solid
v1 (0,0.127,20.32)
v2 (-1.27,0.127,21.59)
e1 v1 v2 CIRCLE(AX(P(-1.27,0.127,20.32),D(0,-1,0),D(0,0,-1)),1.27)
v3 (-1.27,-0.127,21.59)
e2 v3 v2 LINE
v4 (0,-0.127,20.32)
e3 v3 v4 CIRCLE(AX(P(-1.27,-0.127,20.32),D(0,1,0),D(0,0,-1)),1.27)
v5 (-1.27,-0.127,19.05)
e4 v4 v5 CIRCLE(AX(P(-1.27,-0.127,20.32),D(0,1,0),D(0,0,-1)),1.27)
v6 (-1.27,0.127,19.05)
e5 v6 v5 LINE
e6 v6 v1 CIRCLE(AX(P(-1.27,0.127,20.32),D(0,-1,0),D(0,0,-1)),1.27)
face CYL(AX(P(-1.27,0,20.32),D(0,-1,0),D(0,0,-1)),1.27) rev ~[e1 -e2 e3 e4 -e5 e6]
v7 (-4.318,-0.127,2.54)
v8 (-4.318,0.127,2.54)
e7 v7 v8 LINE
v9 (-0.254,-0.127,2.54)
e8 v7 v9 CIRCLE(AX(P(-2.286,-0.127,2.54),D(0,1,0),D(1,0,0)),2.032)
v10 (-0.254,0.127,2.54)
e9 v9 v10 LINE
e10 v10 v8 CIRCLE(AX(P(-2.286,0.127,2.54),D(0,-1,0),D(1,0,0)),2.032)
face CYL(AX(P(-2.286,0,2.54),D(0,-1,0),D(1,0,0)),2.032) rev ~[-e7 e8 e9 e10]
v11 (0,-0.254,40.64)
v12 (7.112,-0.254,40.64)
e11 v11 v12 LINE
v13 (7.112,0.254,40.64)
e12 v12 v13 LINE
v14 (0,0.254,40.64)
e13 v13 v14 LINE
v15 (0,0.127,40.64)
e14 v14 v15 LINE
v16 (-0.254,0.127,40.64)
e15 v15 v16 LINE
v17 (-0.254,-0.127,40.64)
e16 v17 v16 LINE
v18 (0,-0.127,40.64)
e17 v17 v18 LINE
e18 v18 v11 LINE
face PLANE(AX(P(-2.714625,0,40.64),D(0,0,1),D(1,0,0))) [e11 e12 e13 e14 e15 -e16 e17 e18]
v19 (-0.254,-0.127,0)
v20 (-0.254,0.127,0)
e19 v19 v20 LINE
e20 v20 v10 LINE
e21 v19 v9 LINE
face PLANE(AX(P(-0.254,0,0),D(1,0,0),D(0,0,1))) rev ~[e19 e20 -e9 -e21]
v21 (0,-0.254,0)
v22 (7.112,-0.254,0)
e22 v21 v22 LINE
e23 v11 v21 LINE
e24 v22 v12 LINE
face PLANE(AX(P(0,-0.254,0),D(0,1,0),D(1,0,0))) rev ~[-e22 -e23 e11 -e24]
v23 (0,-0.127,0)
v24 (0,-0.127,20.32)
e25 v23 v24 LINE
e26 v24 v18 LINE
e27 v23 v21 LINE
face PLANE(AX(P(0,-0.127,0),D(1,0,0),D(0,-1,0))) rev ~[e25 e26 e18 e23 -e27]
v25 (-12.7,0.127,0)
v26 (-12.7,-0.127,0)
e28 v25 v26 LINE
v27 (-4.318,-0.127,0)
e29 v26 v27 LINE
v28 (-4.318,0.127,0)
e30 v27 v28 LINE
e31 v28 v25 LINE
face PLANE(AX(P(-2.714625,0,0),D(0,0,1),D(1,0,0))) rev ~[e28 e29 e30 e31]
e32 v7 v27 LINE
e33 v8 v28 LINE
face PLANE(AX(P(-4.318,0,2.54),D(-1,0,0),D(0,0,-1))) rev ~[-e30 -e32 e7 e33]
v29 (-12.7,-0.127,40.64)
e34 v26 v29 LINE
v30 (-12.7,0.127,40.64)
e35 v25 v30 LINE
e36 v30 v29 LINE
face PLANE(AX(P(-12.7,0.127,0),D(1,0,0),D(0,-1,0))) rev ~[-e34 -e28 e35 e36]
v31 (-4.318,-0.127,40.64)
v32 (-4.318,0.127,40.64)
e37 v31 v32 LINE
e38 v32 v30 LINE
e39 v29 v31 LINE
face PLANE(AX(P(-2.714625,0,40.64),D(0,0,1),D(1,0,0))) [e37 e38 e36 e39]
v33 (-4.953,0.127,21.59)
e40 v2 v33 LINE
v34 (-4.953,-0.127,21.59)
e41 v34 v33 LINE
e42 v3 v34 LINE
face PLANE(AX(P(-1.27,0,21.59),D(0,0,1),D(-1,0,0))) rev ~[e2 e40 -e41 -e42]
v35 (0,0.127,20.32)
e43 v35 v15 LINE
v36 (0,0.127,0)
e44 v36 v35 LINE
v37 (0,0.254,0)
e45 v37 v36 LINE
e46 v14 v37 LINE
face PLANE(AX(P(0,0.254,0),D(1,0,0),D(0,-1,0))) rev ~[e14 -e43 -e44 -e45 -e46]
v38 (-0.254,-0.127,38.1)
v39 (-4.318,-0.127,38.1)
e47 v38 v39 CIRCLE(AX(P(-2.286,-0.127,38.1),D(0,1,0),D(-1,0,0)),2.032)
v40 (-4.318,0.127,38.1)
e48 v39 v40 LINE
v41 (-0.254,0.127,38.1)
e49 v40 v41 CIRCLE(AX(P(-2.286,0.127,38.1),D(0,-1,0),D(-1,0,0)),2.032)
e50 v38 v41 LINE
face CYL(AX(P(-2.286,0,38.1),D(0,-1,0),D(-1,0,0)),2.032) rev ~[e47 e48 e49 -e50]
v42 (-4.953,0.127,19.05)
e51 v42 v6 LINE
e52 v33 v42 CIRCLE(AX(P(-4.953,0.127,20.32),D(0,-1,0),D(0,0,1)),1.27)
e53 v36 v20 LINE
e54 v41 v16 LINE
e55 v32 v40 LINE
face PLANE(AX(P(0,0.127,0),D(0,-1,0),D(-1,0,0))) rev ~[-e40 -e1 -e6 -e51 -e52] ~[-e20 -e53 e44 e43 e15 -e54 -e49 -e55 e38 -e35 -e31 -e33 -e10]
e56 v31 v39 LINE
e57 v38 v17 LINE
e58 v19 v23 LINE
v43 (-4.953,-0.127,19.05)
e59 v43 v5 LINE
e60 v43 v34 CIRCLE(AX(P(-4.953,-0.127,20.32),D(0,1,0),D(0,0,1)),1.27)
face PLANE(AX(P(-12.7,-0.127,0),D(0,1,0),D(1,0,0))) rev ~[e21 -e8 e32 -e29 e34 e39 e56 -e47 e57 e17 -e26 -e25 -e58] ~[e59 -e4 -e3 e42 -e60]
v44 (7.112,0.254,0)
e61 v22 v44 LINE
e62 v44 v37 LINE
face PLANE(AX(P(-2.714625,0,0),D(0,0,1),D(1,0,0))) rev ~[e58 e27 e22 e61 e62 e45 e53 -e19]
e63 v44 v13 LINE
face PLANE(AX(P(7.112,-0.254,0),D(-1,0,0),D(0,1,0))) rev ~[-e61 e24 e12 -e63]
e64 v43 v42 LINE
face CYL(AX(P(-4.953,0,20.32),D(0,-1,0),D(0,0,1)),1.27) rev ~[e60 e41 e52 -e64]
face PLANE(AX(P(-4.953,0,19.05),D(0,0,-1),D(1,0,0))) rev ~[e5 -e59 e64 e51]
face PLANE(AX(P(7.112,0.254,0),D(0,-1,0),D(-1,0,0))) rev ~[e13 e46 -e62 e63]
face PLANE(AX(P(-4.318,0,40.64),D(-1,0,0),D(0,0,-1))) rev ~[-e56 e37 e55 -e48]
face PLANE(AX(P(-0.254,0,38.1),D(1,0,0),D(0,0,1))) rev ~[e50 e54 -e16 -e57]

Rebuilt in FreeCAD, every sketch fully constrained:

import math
import FreeCAD as App
import Part
import Sketcher
from FreeCAD import Vector
Q = App.Units.Quantity

doc = App.newDocument("Part")
params = doc.addObject("Spreadsheet::Sheet", "Params")
for row, (alias, value) in enumerate([
    ("sketch1_width", "0.5 in"),
    ("sketch1_width2", "0.28 in"),
    ("sketch1_height", "0.01 in"),
    ("sketch1_height2", "0.02 in"),
    ("pad1_length", "1.6 in"),
    ("sketch2_radius", "0.08 in"),
    ("sketch2_radius2", "0.05 in"),
    ("sketch2_height", "0.1 in"),
    ("sketch2_width", "0.145 in"),
], start=1):
    params.set(f"A{row}", alias)
    params.set(f"B{row}", "=" + value)
    params.setAlias(f"B{row}", alias)

body = doc.addObject("PartDesign::Body", "Body")

# Sketch on XY plane
sketch1 = body.newObject("Sketcher::SketchObject", "Sketch")
sketch1.AttachmentSupport = (doc.getObject("XY_Plane"), [""])
sketch1.MapMode = "FlatFace"
sketch1.addGeometry(Part.LineSegment(Vector(0, 0.127, 0), Vector(-12.7, 0.127, 0)), False)
sketch1.addGeometry(Part.LineSegment(Vector(-12.7, 0.127, 0), Vector(-12.7, -0.127, 0)), False)
sketch1.addGeometry(Part.LineSegment(Vector(-12.7, -0.127, 0), Vector(0, -0.127, 0)), False)
sketch1.addGeometry(Part.LineSegment(Vector(0, -0.127, 0), Vector(0, -0.254, 0)), False)
sketch1.addGeometry(Part.LineSegment(Vector(0, -0.254, 0), Vector(7.112, -0.254, 0)), False)
sketch1.addGeometry(Part.LineSegment(Vector(7.112, -0.254, 0), Vector(7.112, 0.254, 0)), False)
sketch1.addGeometry(Part.LineSegment(Vector(7.112, 0.254, 0), Vector(0, 0.254, 0)), False)
sketch1.addGeometry(Part.LineSegment(Vector(0, 0.254, 0), Vector(0, 0.127, 0)), False)
sketch1.addConstraint(Sketcher.Constraint("Coincident", 0, 2, 1, 1))
sketch1.addConstraint(Sketcher.Constraint("Coincident", 1, 2, 2, 1))
sketch1.addConstraint(Sketcher.Constraint("Coincident", 2, 2, 3, 1))
sketch1.addConstraint(Sketcher.Constraint("Coincident", 3, 2, 4, 1))
sketch1.addConstraint(Sketcher.Constraint("Coincident", 4, 2, 5, 1))
sketch1.addConstraint(Sketcher.Constraint("Coincident", 5, 2, 6, 1))
sketch1.addConstraint(Sketcher.Constraint("Coincident", 6, 2, 7, 1))
sketch1.addConstraint(Sketcher.Constraint("Coincident", 7, 2, 0, 1))
sketch1.addConstraint(Sketcher.Constraint("Horizontal", 0))
sketch1.addConstraint(Sketcher.Constraint("Vertical", 1))
sketch1.addConstraint(Sketcher.Constraint("Horizontal", 2))
sketch1.addConstraint(Sketcher.Constraint("Vertical", 3))
sketch1.addConstraint(Sketcher.Constraint("Horizontal", 4))
sketch1.addConstraint(Sketcher.Constraint("Vertical", 5))
sketch1.addConstraint(Sketcher.Constraint("Horizontal", 6))
sketch1.addConstraint(Sketcher.Constraint("Vertical", 7))
sketch1.addConstraint(Sketcher.Constraint("Symmetric", 3, 2, 6, 2, -1, 1))
sketch1.addConstraint(Sketcher.Constraint("Symmetric", 2, 2, 7, 2, -1))
sketch1.addConstraint(Sketcher.Constraint("DistanceX", 0, 2, 0, 1, Q("0.5 in")))
sketch1.addConstraint(Sketcher.Constraint("DistanceX", 4, 1, 4, 2, Q("0.28 in")))
sketch1.addConstraint(Sketcher.Constraint("DistanceY", 1, 2, 1, 1, Q("0.01 in")))
sketch1.addConstraint(Sketcher.Constraint("DistanceY", 5, 1, 5, 2, Q("0.02 in")))
sketch1.setExpression("Constraints[18]", "Params.sketch1_width")
sketch1.setExpression("Constraints[19]", "Params.sketch1_width2")
sketch1.setExpression("Constraints[20]", "Params.sketch1_height")
sketch1.setExpression("Constraints[21]", "Params.sketch1_height2")
pad1 = body.newObject("PartDesign::Pad", "Pad")
pad1.Profile = sketch1
pad1.setExpression("Length", "Params.pad1_length")

# Sketch on XZ plane
sketch2 = body.newObject("Sketcher::SketchObject", "Sketch001")
sketch2.AttachmentSupport = (doc.getObject("XZ_Plane"), [""])
sketch2.MapMode = "FlatFace"
sketch2.addGeometry(Part.LineSegment(Vector(-4.318, 40.64, 0), Vector(-4.318, 38.1, 0)), False)
sketch2.addGeometry(Part.ArcOfCircle(Part.Circle(Vector(-2.286, 38.1, 0), Vector(0, 0, 1), 2.032), math.radians(180), math.radians(360)), False)
sketch2.addGeometry(Part.LineSegment(Vector(-0.254, 38.1, 0), Vector(-0.254, 40.64, 0)), False)
sketch2.addGeometry(Part.LineSegment(Vector(-0.254, 40.64, 0), Vector(-4.318, 40.64, 0)), False)
sketch2.addGeometry(Part.LineSegment(Vector(-4.318, 2.54, 0), Vector(-4.318, 0, 0)), False)
sketch2.addGeometry(Part.LineSegment(Vector(-4.318, 0, 0), Vector(-0.254, 0, 0)), False)
sketch2.addGeometry(Part.LineSegment(Vector(-0.254, 0, 0), Vector(-0.254, 2.54, 0)), False)
sketch2.addGeometry(Part.ArcOfCircle(Part.Circle(Vector(-2.286, 2.54, 0), Vector(0, 0, 1), 2.032), math.radians(0), math.radians(180)), False)
sketch2.addGeometry(Part.LineSegment(Vector(-1.27, 21.59, 0), Vector(-4.953, 21.59, 0)), False)
sketch2.addGeometry(Part.ArcOfCircle(Part.Circle(Vector(-4.953, 20.32, 0), Vector(0, 0, 1), 1.27), math.radians(90), math.radians(270)), False)
sketch2.addGeometry(Part.LineSegment(Vector(-4.953, 19.05, 0), Vector(-1.27, 19.05, 0)), False)
sketch2.addGeometry(Part.ArcOfCircle(Part.Circle(Vector(-1.27, 20.32, 0), Vector(0, 0, 1), 1.27), math.radians(-90), math.radians(90)), False)
sketch2.addConstraint(Sketcher.Constraint("Tangent", 0, 2, 1, 1))
sketch2.addConstraint(Sketcher.Constraint("Tangent", 1, 2, 2, 1))
sketch2.addConstraint(Sketcher.Constraint("Coincident", 2, 2, 3, 1))
sketch2.addConstraint(Sketcher.Constraint("Coincident", 3, 2, 0, 1))
sketch2.addConstraint(Sketcher.Constraint("Coincident", 4, 2, 5, 1))
sketch2.addConstraint(Sketcher.Constraint("Coincident", 5, 2, 6, 1))
sketch2.addConstraint(Sketcher.Constraint("Tangent", 6, 2, 7, 1))
sketch2.addConstraint(Sketcher.Constraint("Tangent", 7, 2, 4, 1))
sketch2.addConstraint(Sketcher.Constraint("Tangent", 8, 2, 9, 1))
sketch2.addConstraint(Sketcher.Constraint("Tangent", 9, 2, 10, 1))
sketch2.addConstraint(Sketcher.Constraint("Tangent", 10, 2, 11, 1))
sketch2.addConstraint(Sketcher.Constraint("Tangent", 11, 2, 8, 1))
sketch2.addConstraint(Sketcher.Constraint("Vertical", 0))
sketch2.addConstraint(Sketcher.Constraint("Vertical", 2))
sketch2.addConstraint(Sketcher.Constraint("Horizontal", 3))
sketch2.addConstraint(Sketcher.Constraint("Vertical", 4))
sketch2.addConstraint(Sketcher.Constraint("Horizontal", 5))
sketch2.addConstraint(Sketcher.Constraint("Vertical", 6))
sketch2.addConstraint(Sketcher.Constraint("Horizontal", 8))
sketch2.addConstraint(Sketcher.Constraint("Horizontal", 10))
sketch2.addConstraint(Sketcher.Constraint("Equal", 1, 7))
sketch2.addConstraint(Sketcher.Constraint("PointOnObject", 4, 2, -1))
sketch2.addConstraint(Sketcher.Constraint("Vertical", 1, 3, 7, 3))
sketch2.addConstraint(Sketcher.Constraint("Equal", 2, 4))
sketch2.addConstraint(Sketcher.Constraint("Radius", 1, Q("0.08 in")))
sketch2.addConstraint(Sketcher.Constraint("Radius", 9, Q("0.05 in")))
sketch2.addConstraint(Sketcher.Constraint("DistanceY", 0, 2, 0, 1, Q("0.1 in")))
sketch2.addConstraint(Sketcher.Constraint("DistanceY", -1, 1, 1, 3, Q("1.5 in")))
sketch2.addConstraint(Sketcher.Constraint("DistanceY", -1, 1, 9, 3, Q("0.8 in")))
sketch2.addConstraint(Sketcher.Constraint("DistanceX", 8, 2, 8, 1, Q("0.145 in")))
sketch2.addConstraint(Sketcher.Constraint("DistanceX", 1, 3, -1, 1, Q("0.09 in")))
sketch2.addConstraint(Sketcher.Constraint("DistanceX", 11, 3, -1, 1, Q("0.05 in")))
sketch2.setExpression("Constraints[24]", "Params.sketch2_radius")
sketch2.setExpression("Constraints[25]", "Params.sketch2_radius2")
sketch2.setExpression("Constraints[26]", "Params.sketch2_height")
sketch2.setExpression("Constraints[29]", "Params.sketch2_width")
pocket1 = body.newObject("PartDesign::Pocket", "Pocket")
pocket1.Profile = sketch2
pocket1.Type = "ThroughAll"
pocket1.Midplane = True

doc.recompute()
